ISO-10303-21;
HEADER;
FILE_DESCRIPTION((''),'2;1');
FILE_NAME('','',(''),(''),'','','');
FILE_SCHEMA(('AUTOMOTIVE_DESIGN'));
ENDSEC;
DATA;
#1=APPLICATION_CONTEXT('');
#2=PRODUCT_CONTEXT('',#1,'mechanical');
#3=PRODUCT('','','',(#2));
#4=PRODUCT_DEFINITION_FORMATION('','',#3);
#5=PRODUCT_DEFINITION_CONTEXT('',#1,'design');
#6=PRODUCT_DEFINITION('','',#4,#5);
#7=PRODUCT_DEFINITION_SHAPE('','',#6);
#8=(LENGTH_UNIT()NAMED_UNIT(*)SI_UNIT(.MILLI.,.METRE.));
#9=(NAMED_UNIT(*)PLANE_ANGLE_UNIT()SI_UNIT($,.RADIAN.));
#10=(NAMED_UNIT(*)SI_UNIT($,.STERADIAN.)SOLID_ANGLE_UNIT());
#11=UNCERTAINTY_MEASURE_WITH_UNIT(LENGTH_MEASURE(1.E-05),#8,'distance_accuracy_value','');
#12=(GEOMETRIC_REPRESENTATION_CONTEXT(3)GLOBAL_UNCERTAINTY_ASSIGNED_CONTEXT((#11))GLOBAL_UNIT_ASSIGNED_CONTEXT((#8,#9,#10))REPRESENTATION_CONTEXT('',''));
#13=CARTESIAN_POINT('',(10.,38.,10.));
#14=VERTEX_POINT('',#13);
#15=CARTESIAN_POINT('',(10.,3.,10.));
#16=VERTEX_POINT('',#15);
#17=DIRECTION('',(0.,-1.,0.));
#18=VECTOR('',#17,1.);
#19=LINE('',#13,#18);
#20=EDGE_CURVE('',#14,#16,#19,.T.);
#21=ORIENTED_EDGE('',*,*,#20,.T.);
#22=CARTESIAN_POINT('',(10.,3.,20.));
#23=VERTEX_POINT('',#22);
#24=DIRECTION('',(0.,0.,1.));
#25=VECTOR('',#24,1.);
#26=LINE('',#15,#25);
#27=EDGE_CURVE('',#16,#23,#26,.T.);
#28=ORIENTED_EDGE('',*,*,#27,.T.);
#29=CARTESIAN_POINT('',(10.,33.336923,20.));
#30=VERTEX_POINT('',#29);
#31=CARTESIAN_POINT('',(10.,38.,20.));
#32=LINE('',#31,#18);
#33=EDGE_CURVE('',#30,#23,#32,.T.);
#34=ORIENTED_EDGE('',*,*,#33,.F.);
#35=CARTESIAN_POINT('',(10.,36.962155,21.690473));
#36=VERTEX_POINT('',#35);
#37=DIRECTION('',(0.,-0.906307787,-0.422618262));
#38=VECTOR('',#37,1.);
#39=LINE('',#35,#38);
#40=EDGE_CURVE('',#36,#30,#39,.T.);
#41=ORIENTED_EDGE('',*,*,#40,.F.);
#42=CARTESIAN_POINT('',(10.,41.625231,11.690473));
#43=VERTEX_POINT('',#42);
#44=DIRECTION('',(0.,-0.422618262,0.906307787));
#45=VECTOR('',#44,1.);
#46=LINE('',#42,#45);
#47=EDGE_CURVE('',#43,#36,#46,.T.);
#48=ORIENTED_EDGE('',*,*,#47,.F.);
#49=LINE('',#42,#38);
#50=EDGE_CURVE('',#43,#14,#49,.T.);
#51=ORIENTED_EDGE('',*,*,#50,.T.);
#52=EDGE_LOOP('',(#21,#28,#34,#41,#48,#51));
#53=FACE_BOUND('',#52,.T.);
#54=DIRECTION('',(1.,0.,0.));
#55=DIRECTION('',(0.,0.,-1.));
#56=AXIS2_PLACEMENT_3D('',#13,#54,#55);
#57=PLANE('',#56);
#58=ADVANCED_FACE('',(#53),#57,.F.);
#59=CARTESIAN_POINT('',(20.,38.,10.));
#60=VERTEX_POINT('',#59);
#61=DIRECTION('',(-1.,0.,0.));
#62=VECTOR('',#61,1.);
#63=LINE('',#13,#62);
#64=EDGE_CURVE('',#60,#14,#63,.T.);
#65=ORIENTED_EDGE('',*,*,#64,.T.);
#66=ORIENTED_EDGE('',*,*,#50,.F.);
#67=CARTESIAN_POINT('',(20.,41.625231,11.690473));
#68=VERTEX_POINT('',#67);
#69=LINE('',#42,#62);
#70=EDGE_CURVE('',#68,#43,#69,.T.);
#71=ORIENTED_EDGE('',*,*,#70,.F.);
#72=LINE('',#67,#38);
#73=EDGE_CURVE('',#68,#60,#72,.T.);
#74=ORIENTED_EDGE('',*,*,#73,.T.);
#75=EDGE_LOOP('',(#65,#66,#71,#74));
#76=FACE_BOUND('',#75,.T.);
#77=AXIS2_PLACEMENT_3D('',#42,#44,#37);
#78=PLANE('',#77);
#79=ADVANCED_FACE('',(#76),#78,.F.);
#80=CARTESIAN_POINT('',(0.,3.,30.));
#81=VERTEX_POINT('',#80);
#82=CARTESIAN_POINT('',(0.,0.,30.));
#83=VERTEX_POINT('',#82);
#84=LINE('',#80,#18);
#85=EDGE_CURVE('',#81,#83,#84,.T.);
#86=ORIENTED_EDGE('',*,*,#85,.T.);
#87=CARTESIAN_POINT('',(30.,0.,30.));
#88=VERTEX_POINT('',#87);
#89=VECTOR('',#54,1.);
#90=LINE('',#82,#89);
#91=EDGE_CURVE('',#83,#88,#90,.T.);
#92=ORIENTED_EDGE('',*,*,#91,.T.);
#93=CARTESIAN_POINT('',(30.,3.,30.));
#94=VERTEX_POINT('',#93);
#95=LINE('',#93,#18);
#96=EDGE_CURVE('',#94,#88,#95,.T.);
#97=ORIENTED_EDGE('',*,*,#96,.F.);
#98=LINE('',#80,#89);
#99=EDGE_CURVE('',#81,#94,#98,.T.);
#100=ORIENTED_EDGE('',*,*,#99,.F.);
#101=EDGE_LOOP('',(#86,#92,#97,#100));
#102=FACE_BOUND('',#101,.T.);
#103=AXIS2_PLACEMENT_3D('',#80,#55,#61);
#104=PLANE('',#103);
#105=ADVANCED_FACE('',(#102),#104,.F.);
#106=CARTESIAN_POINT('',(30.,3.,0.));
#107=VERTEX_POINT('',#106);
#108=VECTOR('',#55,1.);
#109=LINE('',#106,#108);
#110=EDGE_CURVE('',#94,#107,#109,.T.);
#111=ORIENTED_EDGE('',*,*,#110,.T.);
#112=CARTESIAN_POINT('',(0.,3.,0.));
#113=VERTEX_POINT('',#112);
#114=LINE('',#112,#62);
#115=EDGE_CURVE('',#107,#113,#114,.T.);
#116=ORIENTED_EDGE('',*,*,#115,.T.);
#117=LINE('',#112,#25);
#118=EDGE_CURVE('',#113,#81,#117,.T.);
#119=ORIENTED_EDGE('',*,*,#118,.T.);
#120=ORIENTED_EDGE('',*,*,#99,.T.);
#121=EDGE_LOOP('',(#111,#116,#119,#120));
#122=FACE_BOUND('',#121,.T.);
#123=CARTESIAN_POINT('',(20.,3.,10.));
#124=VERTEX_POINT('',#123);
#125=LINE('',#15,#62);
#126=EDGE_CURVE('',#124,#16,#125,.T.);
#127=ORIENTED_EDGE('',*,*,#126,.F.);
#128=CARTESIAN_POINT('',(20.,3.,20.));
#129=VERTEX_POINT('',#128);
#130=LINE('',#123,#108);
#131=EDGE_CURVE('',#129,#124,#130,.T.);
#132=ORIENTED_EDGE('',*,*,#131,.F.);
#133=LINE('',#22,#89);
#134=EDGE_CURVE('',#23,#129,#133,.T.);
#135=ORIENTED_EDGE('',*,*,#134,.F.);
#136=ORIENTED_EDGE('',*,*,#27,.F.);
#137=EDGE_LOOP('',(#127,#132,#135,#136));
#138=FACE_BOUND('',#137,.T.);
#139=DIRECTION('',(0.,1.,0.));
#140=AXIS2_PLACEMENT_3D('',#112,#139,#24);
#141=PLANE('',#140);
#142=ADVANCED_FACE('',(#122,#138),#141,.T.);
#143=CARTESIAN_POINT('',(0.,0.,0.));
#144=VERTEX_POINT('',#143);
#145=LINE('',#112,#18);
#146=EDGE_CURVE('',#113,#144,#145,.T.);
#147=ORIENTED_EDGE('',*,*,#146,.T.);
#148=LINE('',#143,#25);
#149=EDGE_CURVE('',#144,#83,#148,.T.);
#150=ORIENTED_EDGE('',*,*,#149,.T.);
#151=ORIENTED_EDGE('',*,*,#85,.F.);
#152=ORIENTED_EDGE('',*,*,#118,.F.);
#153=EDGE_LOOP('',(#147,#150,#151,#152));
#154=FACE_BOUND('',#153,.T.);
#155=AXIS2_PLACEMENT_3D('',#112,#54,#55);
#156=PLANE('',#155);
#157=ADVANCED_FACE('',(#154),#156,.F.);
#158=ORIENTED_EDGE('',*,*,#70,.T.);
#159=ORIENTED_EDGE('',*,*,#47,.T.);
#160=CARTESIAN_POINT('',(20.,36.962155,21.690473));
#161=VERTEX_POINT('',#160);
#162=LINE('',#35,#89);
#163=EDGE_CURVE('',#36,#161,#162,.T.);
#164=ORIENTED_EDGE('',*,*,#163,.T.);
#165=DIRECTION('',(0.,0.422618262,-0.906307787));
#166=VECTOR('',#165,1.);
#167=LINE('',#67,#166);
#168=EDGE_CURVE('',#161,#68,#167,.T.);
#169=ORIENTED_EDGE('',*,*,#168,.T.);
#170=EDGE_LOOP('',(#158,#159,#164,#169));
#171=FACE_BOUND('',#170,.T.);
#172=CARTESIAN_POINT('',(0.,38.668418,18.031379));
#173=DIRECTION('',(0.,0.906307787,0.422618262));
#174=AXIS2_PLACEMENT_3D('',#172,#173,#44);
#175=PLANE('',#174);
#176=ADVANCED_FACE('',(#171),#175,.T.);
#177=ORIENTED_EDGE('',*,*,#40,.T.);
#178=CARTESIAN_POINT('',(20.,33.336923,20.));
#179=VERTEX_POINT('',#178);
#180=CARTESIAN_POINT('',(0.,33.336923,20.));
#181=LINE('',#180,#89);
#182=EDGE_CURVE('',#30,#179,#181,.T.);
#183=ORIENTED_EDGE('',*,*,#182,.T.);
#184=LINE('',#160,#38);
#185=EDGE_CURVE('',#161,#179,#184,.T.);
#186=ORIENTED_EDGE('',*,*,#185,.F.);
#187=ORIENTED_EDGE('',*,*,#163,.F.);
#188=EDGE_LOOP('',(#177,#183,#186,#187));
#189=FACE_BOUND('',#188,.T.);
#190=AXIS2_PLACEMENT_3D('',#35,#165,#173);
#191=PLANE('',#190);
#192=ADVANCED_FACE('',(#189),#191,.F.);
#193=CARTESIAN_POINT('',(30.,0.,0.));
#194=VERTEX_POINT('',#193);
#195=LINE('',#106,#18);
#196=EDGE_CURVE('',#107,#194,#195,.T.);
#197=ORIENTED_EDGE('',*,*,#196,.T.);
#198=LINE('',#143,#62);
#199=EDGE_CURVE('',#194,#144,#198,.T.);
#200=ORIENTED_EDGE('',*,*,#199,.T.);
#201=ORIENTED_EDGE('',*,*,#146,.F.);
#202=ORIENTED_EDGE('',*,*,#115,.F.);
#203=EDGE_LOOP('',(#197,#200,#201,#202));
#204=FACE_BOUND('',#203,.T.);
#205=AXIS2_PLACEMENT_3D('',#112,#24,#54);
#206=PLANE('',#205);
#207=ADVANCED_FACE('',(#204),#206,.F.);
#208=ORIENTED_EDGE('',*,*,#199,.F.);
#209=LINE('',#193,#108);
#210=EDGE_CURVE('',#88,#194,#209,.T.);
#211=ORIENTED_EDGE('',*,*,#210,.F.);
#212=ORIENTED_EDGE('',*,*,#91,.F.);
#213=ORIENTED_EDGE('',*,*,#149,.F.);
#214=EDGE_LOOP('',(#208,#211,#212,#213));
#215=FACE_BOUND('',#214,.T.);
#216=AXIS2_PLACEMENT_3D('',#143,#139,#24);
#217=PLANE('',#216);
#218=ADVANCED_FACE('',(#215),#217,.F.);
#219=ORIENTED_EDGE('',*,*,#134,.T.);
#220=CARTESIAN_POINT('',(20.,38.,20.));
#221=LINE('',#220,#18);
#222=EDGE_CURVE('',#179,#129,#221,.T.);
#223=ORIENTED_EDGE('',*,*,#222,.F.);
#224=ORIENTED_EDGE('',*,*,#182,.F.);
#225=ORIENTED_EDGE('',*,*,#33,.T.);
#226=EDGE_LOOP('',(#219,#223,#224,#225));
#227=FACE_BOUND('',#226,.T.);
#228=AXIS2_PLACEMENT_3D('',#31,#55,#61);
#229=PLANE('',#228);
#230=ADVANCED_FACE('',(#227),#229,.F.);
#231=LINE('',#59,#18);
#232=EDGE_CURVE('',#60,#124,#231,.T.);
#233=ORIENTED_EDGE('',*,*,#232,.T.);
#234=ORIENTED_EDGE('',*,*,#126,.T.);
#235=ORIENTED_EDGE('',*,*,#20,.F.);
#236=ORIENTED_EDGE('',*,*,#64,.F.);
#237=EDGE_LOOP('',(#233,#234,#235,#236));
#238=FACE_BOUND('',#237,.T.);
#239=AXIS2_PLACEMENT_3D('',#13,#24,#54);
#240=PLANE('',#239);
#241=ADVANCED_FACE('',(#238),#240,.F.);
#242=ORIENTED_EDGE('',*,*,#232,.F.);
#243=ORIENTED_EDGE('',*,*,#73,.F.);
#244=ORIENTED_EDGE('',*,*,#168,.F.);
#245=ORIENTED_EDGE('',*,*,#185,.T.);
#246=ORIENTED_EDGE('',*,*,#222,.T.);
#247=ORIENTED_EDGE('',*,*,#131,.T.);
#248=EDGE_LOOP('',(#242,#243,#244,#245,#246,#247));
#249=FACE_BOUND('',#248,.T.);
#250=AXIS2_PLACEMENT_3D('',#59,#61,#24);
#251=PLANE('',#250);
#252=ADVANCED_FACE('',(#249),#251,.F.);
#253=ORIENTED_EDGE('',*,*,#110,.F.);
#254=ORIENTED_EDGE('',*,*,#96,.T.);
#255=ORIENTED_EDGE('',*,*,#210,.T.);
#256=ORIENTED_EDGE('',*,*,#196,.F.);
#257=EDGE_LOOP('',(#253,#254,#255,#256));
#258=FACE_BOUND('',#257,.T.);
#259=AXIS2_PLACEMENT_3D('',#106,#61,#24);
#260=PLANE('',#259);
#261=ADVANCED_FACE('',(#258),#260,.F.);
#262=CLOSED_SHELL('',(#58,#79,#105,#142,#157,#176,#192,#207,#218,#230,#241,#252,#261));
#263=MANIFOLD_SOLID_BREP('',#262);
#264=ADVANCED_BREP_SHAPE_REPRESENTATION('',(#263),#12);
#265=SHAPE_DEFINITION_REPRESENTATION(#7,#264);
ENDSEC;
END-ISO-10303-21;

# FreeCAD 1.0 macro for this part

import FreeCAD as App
import Part
import Sketcher
Q = App.Units.Quantity

doc = App.newDocument("Part")
body = doc.addObject("PartDesign::Body", "Body")

sketch1 = body.newObject("Sketcher::SketchObject", "Sketch")
sketch1.AttachmentSupport = (doc.getObject("XZ_Plane"), [""])
sketch1.MapMode = "FlatFace"
sketch1.addGeometry(Part.LineSegment(App.Vector(0, 0, 0), App.Vector(0, 30, 0)), False)
sketch1.addGeometry(Part.LineSegment(App.Vector(0, 30, 0), App.Vector(30, 30, 0)), False)
sketch1.addGeometry(Part.LineSegment(App.Vector(30, 30, 0), App.Vector(30, 0, 0)), False)
sketch1.addGeometry(Part.LineSegment(App.Vector(30, 0, 0), App.Vector(0, 0, 0)), False)
sketch1.addConstraint(Sketcher.Constraint("Coincident", 0, 2, 1, 1))
sketch1.addConstraint(Sketcher.Constraint("Coincident", 1, 2, 2, 1))
sketch1.addConstraint(Sketcher.Constraint("Coincident", 2, 2, 3, 1))
sketch1.addConstraint(Sketcher.Constraint("Coincident", 3, 2, 0, 1))
sketch1.addConstraint(Sketcher.Constraint("Vertical", 0))
sketch1.addConstraint(Sketcher.Constraint("Horizontal", 1))
sketch1.addConstraint(Sketcher.Constraint("Vertical", 2))
sketch1.addConstraint(Sketcher.Constraint("Horizontal", 3))
sketch1.addConstraint(Sketcher.Constraint("Coincident", 3, 2, -1, 1))
sketch1.addConstraint(Sketcher.Constraint("Equal", 3, 0))
sketch1.addConstraint(Sketcher.Constraint("DistanceX", 1, 1, 1, 2, Q("30 mm")))
pad1 = body.newObject("PartDesign::Pad", "Pad")
pad1.Profile = sketch1
pad1.Length = 3
pad1.Reversed = True

sketch2 = body.newObject("Sketcher::SketchObject", "Sketch001")
sketch2.AttachmentSupport = (doc.getObject("XZ_Plane"), [""])
sketch2.MapMode = "FlatFace"
sketch2.AttachmentOffset = App.Placement(App.Vector(0, 0, -3), App.Rotation())
sketch2.addGeometry(Part.LineSegment(App.Vector(10, 10, 0), App.Vector(10, 20, 0)), False)
sketch2.addGeometry(Part.LineSegment(App.Vector(10, 20, 0), App.Vector(20, 20, 0)), False)
sketch2.addGeometry(Part.LineSegment(App.Vector(20, 20, 0), App.Vector(20, 10, 0)), False)
sketch2.addGeometry(Part.LineSegment(App.Vector(20, 10, 0), App.Vector(10, 10, 0)), False)
sketch2.addConstraint(Sketcher.Constraint("Coincident", 0, 2, 1, 1))
sketch2.addConstraint(Sketcher.Constraint("Coincident", 1, 2, 2, 1))
sketch2.addConstraint(Sketcher.Constraint("Coincident", 2, 2, 3, 1))
sketch2.addConstraint(Sketcher.Constraint("Coincident", 3, 2, 0, 1))
sketch2.addConstraint(Sketcher.Constraint("Vertical", 0))
sketch2.addConstraint(Sketcher.Constraint("Horizontal", 1))
sketch2.addConstraint(Sketcher.Constraint("Vertical", 2))
sketch2.addConstraint(Sketcher.Constraint("Horizontal", 3))
sketch2.addConstraint(Sketcher.Constraint("Equal", 3, 0))
sketch2.addConstraint(Sketcher.Constraint("DistanceX", 1, 1, 1, 2, Q("10 mm")))
sketch2.addConstraint(Sketcher.Constraint("DistanceX", -1, 1, 0, 2, Q("10 mm")))
sketch2.addConstraint(Sketcher.Constraint("DistanceY", -1, 1, 0, 2, Q("20 mm")))
pad2 = body.newObject("PartDesign::Pad", "Pad001")
pad2.Profile = sketch2
pad2.Length = 35
pad2.Reversed = True

sketch3 = body.newObject("Sketcher::SketchObject", "Sketch002")
sketch3.AttachmentSupport = (doc.getObject("YZ_Plane"), [""])
sketch3.MapMode = "FlatFace"
sketch3.AttachmentOffset = App.Placement(App.Vector(0, 0, 20), App.Rotation())
sketch3.addGeometry(Part.LineSegment(App.Vector(38, 10, 0), App.Vector(38, 20, 0)), False)
sketch3.addGeometry(Part.LineSegment(App.Vector(38, 20, 0), App.Vector(33.336923, 20, 0)), False)
sketch3.addGeometry(Part.LineSegment(App.Vector(33.336923, 20, 0), App.Vector(38, 10, 0)), False)
sketch3.addConstraint(Sketcher.Constraint("Coincident", 0, 2, 1, 1))
sketch3.addConstraint(Sketcher.Constraint("Coincident", 1, 2, 2, 1))
sketch3.addConstraint(Sketcher.Constraint("Coincident", 2, 2, 0, 1))
sketch3.addConstraint(Sketcher.Constraint("Vertical", 0))
sketch3.addConstraint(Sketcher.Constraint("Horizontal", 1))
sketch3.addConstraint(Sketcher.Constraint("DistanceY", 0, 1, 0, 2, Q("10 mm")))
sketch3.addConstraint(Sketcher.Constraint("Angle", 2, Q("-65 deg")))
sketch3.addConstraint(Sketcher.Constraint("DistanceX", -1, 1, 0, 2, Q("38 mm")))
sketch3.addConstraint(Sketcher.Constraint("DistanceY", -1, 1, 0, 2, Q("20 mm")))
pocket1 = body.newObject("PartDesign::Pocket", "Pocket")
pocket1.Profile = sketch3
pocket1.Type = "ThroughAll"

sketch4 = body.newObject("Sketcher::SketchObject", "Sketch003")
sketch4.Placement = App.Placement(App.Vector(0, 35.043187, 16.340906), App.Rotation(App.Vector(1, 0, 0), App.Vector(0, 0.422618262, -0.906307787), App.Vector(0, 0.906307787, 0.422618262), "ZXY"))
sketch4.addGeometry(Part.LineSegment(App.Vector(10, 6.996416, 0), App.Vector(10, -4.037363, 0)), False)
sketch4.addGeometry(Part.LineSegment(App.Vector(10, -4.037363, 0), App.Vector(20, -4.037363, 0)), False)
sketch4.addGeometry(Part.LineSegment(App.Vector(20, -4.037363, 0), App.Vector(20, 6.996416, 0)), False)
sketch4.addGeometry(Part.LineSegment(App.Vector(20, 6.996416, 0), App.Vector(10, 6.996416, 0)), False)
sketch4.addConstraint(Sketcher.Constraint("Coincident", 0, 2, 1, 1))
sketch4.addConstraint(Sketcher.Constraint("Coincident", 1, 2, 2, 1))
sketch4.addConstraint(Sketcher.Constraint("Coincident", 2, 2, 3, 1))
sketch4.addConstraint(Sketcher.Constraint("Coincident", 3, 2, 0, 1))
sketch4.addConstraint(Sketcher.Constraint("Vertical", 0))
sketch4.addConstraint(Sketcher.Constraint("Horizontal", 1))
sketch4.addConstraint(Sketcher.Constraint("Vertical", 2))
sketch4.addConstraint(Sketcher.Constraint("Horizontal", 3))
sketch4.addConstraint(Sketcher.Constraint("DistanceX", 1, 1, 1, 2, Q("10 mm")))
sketch4.addConstraint(Sketcher.Constraint("DistanceX", -1, 1, 0, 2, Q("10 mm")))
sketch4.addConstraint(Sketcher.Constraint("DistanceY", 0, 2, 0, 1, Q("11.033779 mm")))
sketch4.addConstraint(Sketcher.Constraint("DistanceY", 0, 2, -1, 1, Q("4.037363 mm")))
pad3 = body.newObject("PartDesign::Pad", "Pad002")
pad3.Profile = sketch4
pad3.Length = 4

doc.recompute()
